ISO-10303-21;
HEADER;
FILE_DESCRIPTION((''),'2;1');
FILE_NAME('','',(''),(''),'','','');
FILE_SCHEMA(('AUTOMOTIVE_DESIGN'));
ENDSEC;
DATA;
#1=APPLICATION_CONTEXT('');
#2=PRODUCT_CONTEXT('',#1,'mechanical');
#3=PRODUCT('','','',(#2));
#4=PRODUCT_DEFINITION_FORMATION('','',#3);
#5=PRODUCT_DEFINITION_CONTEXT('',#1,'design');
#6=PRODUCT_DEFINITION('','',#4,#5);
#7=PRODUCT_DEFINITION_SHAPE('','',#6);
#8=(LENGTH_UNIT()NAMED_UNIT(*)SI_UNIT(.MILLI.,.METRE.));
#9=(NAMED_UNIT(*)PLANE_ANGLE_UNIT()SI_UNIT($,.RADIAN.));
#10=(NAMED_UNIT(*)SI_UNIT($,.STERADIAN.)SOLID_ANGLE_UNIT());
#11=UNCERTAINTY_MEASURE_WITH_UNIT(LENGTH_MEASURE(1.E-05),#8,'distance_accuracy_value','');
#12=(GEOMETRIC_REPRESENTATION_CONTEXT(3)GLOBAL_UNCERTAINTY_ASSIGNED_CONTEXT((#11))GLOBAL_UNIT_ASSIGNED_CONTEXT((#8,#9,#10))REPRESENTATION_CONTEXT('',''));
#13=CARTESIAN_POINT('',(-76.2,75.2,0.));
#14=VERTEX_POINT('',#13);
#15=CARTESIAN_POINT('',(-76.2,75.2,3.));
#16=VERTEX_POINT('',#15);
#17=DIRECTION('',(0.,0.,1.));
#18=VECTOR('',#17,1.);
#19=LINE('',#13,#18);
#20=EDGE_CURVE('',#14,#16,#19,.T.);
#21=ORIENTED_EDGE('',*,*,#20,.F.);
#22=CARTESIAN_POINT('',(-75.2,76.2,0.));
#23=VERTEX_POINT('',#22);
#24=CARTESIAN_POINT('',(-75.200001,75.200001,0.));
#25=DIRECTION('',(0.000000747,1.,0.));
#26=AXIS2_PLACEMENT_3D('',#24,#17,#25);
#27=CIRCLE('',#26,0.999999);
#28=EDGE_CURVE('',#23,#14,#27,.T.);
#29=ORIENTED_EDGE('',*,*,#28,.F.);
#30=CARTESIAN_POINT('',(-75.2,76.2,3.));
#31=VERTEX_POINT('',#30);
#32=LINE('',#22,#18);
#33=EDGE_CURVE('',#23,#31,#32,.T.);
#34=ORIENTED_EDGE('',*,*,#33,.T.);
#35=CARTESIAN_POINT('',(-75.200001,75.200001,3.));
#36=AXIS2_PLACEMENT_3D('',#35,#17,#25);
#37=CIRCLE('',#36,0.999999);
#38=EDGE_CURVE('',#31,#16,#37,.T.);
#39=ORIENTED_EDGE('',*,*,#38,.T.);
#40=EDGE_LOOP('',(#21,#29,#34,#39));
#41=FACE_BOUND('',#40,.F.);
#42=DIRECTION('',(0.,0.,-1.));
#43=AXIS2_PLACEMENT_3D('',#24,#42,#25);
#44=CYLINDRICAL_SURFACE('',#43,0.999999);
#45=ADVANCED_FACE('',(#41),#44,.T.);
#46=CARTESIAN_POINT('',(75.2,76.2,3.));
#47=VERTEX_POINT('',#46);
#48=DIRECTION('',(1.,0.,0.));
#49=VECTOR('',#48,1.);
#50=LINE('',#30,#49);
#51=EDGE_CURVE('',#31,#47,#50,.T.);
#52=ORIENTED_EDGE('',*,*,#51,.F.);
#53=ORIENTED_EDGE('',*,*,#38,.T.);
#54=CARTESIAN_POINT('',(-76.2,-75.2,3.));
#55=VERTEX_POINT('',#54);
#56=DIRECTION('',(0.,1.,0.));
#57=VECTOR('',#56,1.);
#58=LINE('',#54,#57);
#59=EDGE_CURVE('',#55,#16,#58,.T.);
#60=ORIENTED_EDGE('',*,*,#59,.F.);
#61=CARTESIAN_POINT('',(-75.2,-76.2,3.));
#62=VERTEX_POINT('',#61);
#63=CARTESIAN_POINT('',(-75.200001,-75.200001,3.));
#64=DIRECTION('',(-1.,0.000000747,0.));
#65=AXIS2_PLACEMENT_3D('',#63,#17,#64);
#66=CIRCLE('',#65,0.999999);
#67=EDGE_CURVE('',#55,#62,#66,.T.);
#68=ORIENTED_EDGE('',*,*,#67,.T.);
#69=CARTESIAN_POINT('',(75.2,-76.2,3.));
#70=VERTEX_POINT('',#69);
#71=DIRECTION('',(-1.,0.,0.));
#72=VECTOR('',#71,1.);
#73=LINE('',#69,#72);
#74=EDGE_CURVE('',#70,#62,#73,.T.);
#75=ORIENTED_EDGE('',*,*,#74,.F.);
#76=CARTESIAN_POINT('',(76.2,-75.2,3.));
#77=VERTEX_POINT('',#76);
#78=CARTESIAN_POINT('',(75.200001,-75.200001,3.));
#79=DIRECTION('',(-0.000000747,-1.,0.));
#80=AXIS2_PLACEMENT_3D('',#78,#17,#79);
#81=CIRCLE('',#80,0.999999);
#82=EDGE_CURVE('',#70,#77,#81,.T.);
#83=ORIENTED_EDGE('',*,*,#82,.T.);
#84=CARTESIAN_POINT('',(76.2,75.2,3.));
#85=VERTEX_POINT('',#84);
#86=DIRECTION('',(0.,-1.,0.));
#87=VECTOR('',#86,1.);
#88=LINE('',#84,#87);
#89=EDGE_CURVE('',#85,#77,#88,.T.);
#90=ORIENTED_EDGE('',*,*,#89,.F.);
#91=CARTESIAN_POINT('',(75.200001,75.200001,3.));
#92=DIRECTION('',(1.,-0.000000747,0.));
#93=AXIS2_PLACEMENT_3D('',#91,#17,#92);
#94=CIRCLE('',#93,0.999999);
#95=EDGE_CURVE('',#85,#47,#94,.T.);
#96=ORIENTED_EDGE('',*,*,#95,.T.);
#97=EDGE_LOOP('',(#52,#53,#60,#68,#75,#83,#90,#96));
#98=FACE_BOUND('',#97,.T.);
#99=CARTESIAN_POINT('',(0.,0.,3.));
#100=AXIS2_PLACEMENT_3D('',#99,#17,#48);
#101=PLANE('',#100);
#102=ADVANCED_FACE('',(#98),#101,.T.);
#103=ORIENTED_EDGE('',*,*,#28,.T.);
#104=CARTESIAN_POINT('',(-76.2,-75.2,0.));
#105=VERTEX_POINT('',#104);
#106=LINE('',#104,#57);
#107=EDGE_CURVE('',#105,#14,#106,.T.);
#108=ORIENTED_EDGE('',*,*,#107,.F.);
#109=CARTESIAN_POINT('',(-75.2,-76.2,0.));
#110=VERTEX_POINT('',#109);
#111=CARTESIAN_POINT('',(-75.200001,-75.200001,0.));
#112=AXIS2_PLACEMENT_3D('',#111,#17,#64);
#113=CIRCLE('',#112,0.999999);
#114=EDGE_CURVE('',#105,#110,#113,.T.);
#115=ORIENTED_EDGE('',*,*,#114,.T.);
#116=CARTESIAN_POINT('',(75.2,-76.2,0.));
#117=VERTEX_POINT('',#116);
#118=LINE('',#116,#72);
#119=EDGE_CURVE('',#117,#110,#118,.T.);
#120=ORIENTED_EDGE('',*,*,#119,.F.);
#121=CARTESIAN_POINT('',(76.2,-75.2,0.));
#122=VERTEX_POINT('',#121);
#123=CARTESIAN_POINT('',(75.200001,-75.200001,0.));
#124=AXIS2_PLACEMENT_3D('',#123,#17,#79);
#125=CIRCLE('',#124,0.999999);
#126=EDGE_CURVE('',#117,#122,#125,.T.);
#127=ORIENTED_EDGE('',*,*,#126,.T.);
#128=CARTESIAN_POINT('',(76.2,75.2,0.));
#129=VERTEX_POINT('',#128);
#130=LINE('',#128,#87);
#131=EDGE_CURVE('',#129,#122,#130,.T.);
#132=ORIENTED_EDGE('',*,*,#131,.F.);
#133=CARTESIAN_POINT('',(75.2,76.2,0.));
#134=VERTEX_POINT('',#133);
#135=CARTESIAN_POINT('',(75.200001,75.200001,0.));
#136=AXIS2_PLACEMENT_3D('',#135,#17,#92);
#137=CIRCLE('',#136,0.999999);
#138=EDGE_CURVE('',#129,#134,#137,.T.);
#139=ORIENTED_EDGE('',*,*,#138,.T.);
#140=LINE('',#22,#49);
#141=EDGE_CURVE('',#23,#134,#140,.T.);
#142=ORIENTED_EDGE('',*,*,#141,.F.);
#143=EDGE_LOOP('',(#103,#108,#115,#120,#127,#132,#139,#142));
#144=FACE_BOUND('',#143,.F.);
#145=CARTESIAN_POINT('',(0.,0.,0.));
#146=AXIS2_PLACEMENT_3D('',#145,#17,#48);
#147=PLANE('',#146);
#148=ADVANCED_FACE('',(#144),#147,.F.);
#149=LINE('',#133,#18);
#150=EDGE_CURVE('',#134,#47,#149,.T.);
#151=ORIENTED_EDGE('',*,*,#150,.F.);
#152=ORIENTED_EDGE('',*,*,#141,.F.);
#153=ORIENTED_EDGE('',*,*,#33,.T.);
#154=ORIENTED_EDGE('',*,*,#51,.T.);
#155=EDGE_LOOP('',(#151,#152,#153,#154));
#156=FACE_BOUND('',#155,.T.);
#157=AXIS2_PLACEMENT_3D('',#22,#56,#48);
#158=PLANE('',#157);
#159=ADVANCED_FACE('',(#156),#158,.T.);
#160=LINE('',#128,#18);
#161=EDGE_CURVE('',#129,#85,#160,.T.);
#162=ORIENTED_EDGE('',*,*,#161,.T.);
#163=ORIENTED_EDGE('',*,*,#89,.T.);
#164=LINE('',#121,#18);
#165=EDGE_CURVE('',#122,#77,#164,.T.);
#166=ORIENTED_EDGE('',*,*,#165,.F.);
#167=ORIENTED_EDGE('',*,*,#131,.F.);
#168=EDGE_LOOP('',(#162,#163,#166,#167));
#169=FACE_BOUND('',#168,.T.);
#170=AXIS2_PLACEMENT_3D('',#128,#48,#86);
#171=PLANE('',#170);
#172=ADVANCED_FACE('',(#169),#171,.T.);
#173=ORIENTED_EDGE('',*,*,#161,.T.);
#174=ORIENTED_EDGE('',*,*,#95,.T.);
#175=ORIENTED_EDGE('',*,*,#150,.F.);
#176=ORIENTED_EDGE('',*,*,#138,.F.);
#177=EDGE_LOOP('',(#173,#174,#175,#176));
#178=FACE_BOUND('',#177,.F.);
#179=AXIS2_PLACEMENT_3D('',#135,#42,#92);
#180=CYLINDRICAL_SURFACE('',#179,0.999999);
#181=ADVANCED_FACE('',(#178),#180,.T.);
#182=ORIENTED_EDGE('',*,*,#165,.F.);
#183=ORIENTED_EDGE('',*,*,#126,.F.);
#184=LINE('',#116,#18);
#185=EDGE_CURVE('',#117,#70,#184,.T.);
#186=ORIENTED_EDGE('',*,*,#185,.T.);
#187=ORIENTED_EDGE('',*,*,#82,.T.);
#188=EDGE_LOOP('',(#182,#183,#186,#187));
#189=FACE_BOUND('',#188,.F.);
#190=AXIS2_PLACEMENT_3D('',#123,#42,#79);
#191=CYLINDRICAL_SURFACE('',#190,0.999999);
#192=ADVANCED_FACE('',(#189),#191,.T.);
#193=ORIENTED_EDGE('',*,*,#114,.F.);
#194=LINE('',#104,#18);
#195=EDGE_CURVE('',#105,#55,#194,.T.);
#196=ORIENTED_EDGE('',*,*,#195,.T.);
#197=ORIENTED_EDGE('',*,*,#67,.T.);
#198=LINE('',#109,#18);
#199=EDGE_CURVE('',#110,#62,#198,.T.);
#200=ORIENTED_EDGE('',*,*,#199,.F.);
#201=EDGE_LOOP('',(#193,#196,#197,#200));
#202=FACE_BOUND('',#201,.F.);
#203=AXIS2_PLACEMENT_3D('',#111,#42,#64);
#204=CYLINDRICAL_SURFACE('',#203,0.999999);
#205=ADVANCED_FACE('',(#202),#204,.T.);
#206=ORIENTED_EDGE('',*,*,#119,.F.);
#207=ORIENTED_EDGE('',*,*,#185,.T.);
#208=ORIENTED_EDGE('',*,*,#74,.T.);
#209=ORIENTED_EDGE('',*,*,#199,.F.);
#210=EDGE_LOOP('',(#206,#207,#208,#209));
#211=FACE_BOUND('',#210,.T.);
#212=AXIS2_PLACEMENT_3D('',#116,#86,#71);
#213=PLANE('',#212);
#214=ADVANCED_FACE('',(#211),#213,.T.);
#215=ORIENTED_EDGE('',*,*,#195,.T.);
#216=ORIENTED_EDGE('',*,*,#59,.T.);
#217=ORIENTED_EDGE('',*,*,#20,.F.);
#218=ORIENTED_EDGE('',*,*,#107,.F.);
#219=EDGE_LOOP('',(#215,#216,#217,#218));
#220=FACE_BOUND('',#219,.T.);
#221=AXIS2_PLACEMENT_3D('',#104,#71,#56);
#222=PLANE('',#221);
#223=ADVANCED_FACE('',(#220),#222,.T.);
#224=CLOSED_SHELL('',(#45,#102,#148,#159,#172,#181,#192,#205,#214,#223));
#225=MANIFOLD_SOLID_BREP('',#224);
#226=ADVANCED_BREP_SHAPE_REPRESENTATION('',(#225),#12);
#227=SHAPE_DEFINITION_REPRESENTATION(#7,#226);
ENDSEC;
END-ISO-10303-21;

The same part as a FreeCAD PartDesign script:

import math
import FreeCAD as App
import Part
import Sketcher
from FreeCAD import Vector
Q = App.Units.Quantity

doc = App.newDocument("Part")
body = doc.addObject("PartDesign::Body", "Body")

sketch1 = doc.addObject("Sketcher::SketchObject", "Sketch")
body.addObject(sketch1)
sketch1.AttachmentSupport = (doc.XY_Plane, [""])
sketch1.MapMode = "FlatFace"
sketch1.addGeometry(Part.ArcOfCircle(Part.Circle(Vector(-75.2, 75.2, 0), Vector(0, 0, 1), 1), math.radians(90), math.radians(180)), False)
sketch1.addGeometry(Part.LineSegment(Vector(-76.2, 75.2, 0), Vector(-76.2, -75.2, 0)), False)
sketch1.addGeometry(Part.ArcOfCircle(Part.Circle(Vector(-75.2, -75.2, 0), Vector(0, 0, 1), 1), math.radians(180), math.radians(270)), False)
sketch1.addGeometry(Part.LineSegment(Vector(-75.2, -76.2, 0), Vector(75.2, -76.2, 0)), False)
sketch1.addGeometry(Part.ArcOfCircle(Part.Circle(Vector(75.2, -75.2, 0), Vector(0, 0, 1), 1), math.radians(-90), math.radians(0)), False)
sketch1.addGeometry(Part.LineSegment(Vector(76.2, -75.2, 0), Vector(76.2, 75.2, 0)), False)
sketch1.addGeometry(Part.ArcOfCircle(Part.Circle(Vector(75.2, 75.2, 0), Vector(0, 0, 1), 1), math.radians(0), math.radians(90)), False)
sketch1.addGeometry(Part.LineSegment(Vector(75.2, 76.2, 0), Vector(-75.2, 76.2, 0)), False)
sketch1.addConstraint(Sketcher.Constraint("Tangent", 0, 2, 1, 1))
sketch1.addConstraint(Sketcher.Constraint("Tangent", 1, 2, 2, 1))
sketch1.addConstraint(Sketcher.Constraint("Tangent", 2, 2, 3, 1))
sketch1.addConstraint(Sketcher.Constraint("Tangent", 3, 2, 4, 1))
sketch1.addConstraint(Sketcher.Constraint("Tangent", 4, 2, 5, 1))
sketch1.addConstraint(Sketcher.Constraint("Tangent", 5, 2, 6, 1))
sketch1.addConstraint(Sketcher.Constraint("Tangent", 6, 2, 7, 1))
sketch1.addConstraint(Sketcher.Constraint("Tangent", 7, 2, 0, 1))
sketch1.addConstraint(Sketcher.Constraint("Vertical", 1))
sketch1.addConstraint(Sketcher.Constraint("Horizontal", 3))
sketch1.addConstraint(Sketcher.Constraint("Vertical", 5))
sketch1.addConstraint(Sketcher.Constraint("Horizontal", 7))
sketch1.addConstraint(Sketcher.Constraint("Equal", 0, 2))
sketch1.addConstraint(Sketcher.Constraint("Equal", 2, 4))
sketch1.addConstraint(Sketcher.Constraint("Equal", 4, 6))
sketch1.addConstraint(Sketcher.Constraint("Symmetric", 0, 3, 4, 3, -1, 1))
sketch1.addConstraint(Sketcher.Constraint("Equal", 7, 1))
sketch1.addConstraint(Sketcher.Constraint("Radius", 0, Q("0.999999 mm")))
sketch1.addConstraint(Sketcher.Constraint("DistanceX", 3, 1, 3, 2, Q("150.4 mm")))
pad1 = doc.addObject("PartDesign::Pad", "Pad")
body.addObject(pad1)
pad1.Profile = sketch1
pad1.Length = 3

doc.recompute()
